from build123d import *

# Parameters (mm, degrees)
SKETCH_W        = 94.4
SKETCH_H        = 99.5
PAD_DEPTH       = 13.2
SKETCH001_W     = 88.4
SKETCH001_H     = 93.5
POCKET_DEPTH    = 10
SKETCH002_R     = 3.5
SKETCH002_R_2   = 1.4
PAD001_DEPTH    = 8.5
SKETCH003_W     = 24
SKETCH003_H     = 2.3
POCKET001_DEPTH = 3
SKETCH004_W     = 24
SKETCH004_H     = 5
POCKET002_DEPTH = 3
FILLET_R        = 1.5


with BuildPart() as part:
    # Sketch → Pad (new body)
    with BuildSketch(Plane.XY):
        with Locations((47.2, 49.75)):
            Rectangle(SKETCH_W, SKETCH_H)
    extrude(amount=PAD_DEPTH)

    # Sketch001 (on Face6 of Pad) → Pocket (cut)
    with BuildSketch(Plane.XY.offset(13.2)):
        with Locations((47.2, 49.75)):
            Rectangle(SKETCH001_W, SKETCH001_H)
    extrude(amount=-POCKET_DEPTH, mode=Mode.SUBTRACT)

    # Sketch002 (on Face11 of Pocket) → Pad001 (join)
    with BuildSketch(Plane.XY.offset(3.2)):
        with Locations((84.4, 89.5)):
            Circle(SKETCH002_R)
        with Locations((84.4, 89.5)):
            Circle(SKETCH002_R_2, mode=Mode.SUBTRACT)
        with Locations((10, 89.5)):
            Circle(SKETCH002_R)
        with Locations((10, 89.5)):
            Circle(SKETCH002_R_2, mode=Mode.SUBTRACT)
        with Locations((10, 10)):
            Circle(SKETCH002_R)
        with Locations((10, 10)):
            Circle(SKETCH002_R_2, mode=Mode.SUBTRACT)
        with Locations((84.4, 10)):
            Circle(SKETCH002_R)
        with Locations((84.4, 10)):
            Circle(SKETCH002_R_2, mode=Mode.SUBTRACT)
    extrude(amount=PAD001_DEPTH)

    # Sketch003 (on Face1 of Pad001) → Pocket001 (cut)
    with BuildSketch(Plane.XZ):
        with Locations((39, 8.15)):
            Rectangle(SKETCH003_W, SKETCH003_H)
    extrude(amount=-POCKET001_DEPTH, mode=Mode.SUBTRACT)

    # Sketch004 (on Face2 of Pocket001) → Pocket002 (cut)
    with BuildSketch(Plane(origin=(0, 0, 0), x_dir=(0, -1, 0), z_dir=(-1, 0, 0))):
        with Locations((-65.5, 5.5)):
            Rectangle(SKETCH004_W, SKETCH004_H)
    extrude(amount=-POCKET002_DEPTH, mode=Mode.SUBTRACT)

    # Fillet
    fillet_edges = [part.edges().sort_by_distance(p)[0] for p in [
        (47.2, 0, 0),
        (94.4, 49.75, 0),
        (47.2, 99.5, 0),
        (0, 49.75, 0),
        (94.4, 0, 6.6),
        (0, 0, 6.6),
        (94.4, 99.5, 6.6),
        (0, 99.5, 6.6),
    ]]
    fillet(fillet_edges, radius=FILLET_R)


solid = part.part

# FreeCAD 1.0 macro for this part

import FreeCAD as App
import Part
import Sketcher

V = App.Vector


def edges_at(feature, points):
    """Names of the edges that pass closest to the given points."""
    edges = feature.Shape.Edges
    near = lambda p: min(range(len(edges)), key=lambda i: edges[i].distToShape(Part.Vertex(*p))[0])
    return sorted({f"Edge{near(p) + 1}" for p in points})

doc = App.newDocument("Part")
body = doc.addObject("PartDesign::Body", "Body")

# Sketch on XY plane
sketch1 = body.newObject("Sketcher::SketchObject", "Sketch")
sketch1.AttachmentSupport = (doc.getObject("XY_Plane"), [""])
sketch1.MapMode = "FlatFace"
sketch1.addGeometry([
    Part.LineSegment(V(0, 100, 0), V(0, 0, 0)),
    Part.LineSegment(V(0, 0, 0), V(94, 0, 0)),
    Part.LineSegment(V(94, 0, 0), V(94, 100, 0)),
    Part.LineSegment(V(94, 100, 0), V(0, 100, 0)),
], False)
sketch1.addConstraint([
    Sketcher.Constraint("Coincident", 0, 2, 1, 1),
    Sketcher.Constraint("Coincident", 1, 2, 2, 1),
    Sketcher.Constraint("Coincident", 2, 2, 3, 1),
    Sketcher.Constraint("Coincident", 3, 2, 0, 1),
    Sketcher.Constraint("Vertical", 0),
    Sketcher.Constraint("Horizontal", 1),
    Sketcher.Constraint("Vertical", 2),
    Sketcher.Constraint("Horizontal", 3),
    Sketcher.Constraint("Coincident", 0, 2, -1, 1),
    Sketcher.Constraint("DistanceX", 1, 1, 1, 2, 94.4),
    Sketcher.Constraint("DistanceY", 0, 2, 0, 1, 99.5),
])
pad1 = body.newObject("PartDesign::Pad", "Pad")
pad1.Profile = sketch1
pad1.Length = 13.2

# Sketch on XY plane
sketch2 = body.newObject("Sketcher::SketchObject", "Sketch001")
sketch2.AttachmentSupport = (doc.getObject("XY_Plane"), [""])
sketch2.MapMode = "FlatFace"
sketch2.AttachmentOffset = App.Placement(V(0, 0, 13.2), App.Rotation())
sketch2.addGeometry([
    Part.LineSegment(V(3, 96, 0), V(3, 3, 0)),
    Part.LineSegment(V(3, 3, 0), V(91, 3, 0)),
    Part.LineSegment(V(91, 3, 0), V(91, 96, 0)),
    Part.LineSegment(V(91, 96, 0), V(3, 96, 0)),
], False)
sketch2.addConstraint([
    Sketcher.Constraint("Coincident", 0, 2, 1, 1),
    Sketcher.Constraint("Coincident", 1, 2, 2, 1),
    Sketcher.Constraint("Coincident", 2, 2, 3, 1),
    Sketcher.Constraint("Coincident", 3, 2, 0, 1),
    Sketcher.Constraint("Vertical", 0),
    Sketcher.Constraint("Horizontal", 1),
    Sketcher.Constraint("Vertical", 2),
    Sketcher.Constraint("Horizontal", 3),
    Sketcher.Constraint("DistanceX", 1, 1, 1, 2, 88.4),
    Sketcher.Constraint("DistanceY", 0, 2, 0, 1, 93.5),
    Sketcher.Constraint("DistanceX", -1, 1, 0, 2, 3.0),
    Sketcher.Constraint("DistanceY", -1, 1, 0, 2, 3.0),
])
pocket1 = body.newObject("PartDesign::Pocket", "Pocket")
pocket1.Profile = sketch2
pocket1.Length = 10

# Sketch on XY plane
sketch3 = body.newObject("Sketcher::SketchObject", "Sketch002")
sketch3.AttachmentSupport = (doc.getObject("XY_Plane"), [""])
sketch3.MapMode = "FlatFace"
sketch3.AttachmentOffset = App.Placement(V(0, 0, 3.2), App.Rotation())
sketch3.addGeometry([
    Part.Circle(V(84.4, 89.5, 0), V(0, 0, 1), 3.5),  # 0
    Part.Circle(V(84.4, 89.5, 0), V(0, 0, 1), 1.4),  # 1
    Part.Circle(V(10, 89.5, 0), V(0, 0, 1), 3.5),  # 2
    Part.Circle(V(10, 89.5, 0), V(0, 0, 1), 1.4),  # 3
    Part.Circle(V(10, 10, 0), V(0, 0, 1), 3.5),  # 4
    Part.Circle(V(10, 10, 0), V(0, 0, 1), 1.4),  # 5
    Part.Circle(V(84.4, 10, 0), V(0, 0, 1), 3.5),  # 6
    Part.Circle(V(84.4, 10, 0), V(0, 0, 1), 1.4),  # 7
], False)
sketch3.addConstraint([
    Sketcher.Constraint("Coincident", 1, 3, 0, 3),
    Sketcher.Constraint("Coincident", 3, 3, 2, 3),
    Sketcher.Constraint("Coincident", 5, 3, 4, 3),
    Sketcher.Constraint("Coincident", 7, 3, 6, 3),
    Sketcher.Constraint("Equal", 0, 2),
    Sketcher.Constraint("Equal", 1, 3),
    Sketcher.Constraint("Equal", 2, 4),
    Sketcher.Constraint("Equal", 3, 5),
    Sketcher.Constraint("Equal", 4, 6),
    Sketcher.Constraint("Equal", 5, 7),
    Sketcher.Constraint("Horizontal", 1, 3, 2, 3),
    Sketcher.Constraint("Horizontal", 5, 3, 6, 3),
    Sketcher.Constraint("Vertical", 3, 3, 4, 3),
    Sketcher.Constraint("Vertical", 1, 3, 6, 3),
    Sketcher.Constraint("Diameter", 0, 7.0),
    Sketcher.Constraint("Diameter", 1, 2.8),
    Sketcher.Constraint("DistanceX", -1, 1, 2, 3, 10.0),
    Sketcher.Constraint("DistanceY", -1, 1, 4, 3, 10.0),
    Sketcher.Constraint("DistanceX", -1, 1, 0, 3, 84.4),
    Sketcher.Constraint("DistanceY", -1, 1, 0, 3, 89.5),
])
pad2 = body.newObject("PartDesign::Pad", "Pad001")
pad2.Profile = sketch3
pad2.Length = 8.5

# Sketch on XZ plane
sketch4 = body.newObject("Sketcher::SketchObject", "Sketch003")
sketch4.AttachmentSupport = (doc.getObject("XZ_Plane"), [""])
sketch4.MapMode = "FlatFace"
sketch4.addGeometry([
    Part.LineSegment(V(27, 9.3, 0), V(27, 7, 0)),
    Part.LineSegment(V(27, 7, 0), V(51, 7, 0)),
    Part.LineSegment(V(51, 7, 0), V(51, 9.3, 0)),
    Part.LineSegment(V(51, 9.3, 0), V(27, 9.3, 0)),
], False)
sketch4.addConstraint([
    Sketcher.Constraint("Coincident", 0, 2, 1, 1),
    Sketcher.Constraint("Coincident", 1, 2, 2, 1),
    Sketcher.Constraint("Coincident", 2, 2, 3, 1),
    Sketcher.Constraint("Coincident", 3, 2, 0, 1),
    Sketcher.Constraint("Vertical", 0),
    Sketcher.Constraint("Horizontal", 1),
    Sketcher.Constraint("Vertical", 2),
    Sketcher.Constraint("Horizontal", 3),
    Sketcher.Constraint("DistanceX", 1, 1, 1, 2, 24.0),
    Sketcher.Constraint("DistanceY", 0, 2, 0, 1, 2.3),
    Sketcher.Constraint("DistanceX", -1, 1, 0, 2, 27.0),
    Sketcher.Constraint("DistanceY", -1, 1, 0, 2, 7.0),
])
pocket2 = body.newObject("PartDesign::Pocket", "Pocket001")
pocket2.Profile = sketch4
pocket2.Length = 3

# Sketch on YZ plane
sketch5 = body.newObject("Sketcher::SketchObject", "Sketch004")
sketch5.AttachmentSupport = (doc.getObject("YZ_Plane"), [""])
sketch5.MapMode = "FlatFace"
sketch5.addGeometry([
    Part.LineSegment(V(78, 8, 0), V(78, 3, 0)),
    Part.LineSegment(V(78, 3, 0), V(54, 3, 0)),
    Part.LineSegment(V(54, 3, 0), V(54, 8, 0)),
    Part.LineSegment(V(54, 8, 0), V(78, 8, 0)),
], False)
sketch5.addConstraint([
    Sketcher.Constraint("Coincident", 0, 2, 1, 1),
    Sketcher.Constraint("Coincident", 1, 2, 2, 1),
    Sketcher.Constraint("Coincident", 2, 2, 3, 1),
    Sketcher.Constraint("Coincident", 3, 2, 0, 1),
    Sketcher.Constraint("Vertical", 0),
    Sketcher.Constraint("Horizontal", 1),
    Sketcher.Constraint("Vertical", 2),
    Sketcher.Constraint("Horizontal", 3),
    Sketcher.Constraint("DistanceX", 1, 2, 1, 1, 24.0),
    Sketcher.Constraint("DistanceY", 0, 2, 0, 1, 5.0),
    Sketcher.Constraint("DistanceY", -1, 1, 0, 2, 3.0),
    Sketcher.Constraint("DistanceX", -1, 1, 0, 2, 77.5),
])
pocket3 = body.newObject("PartDesign::Pocket", "Pocket002")
pocket3.Profile = sketch5
pocket3.Length = 3
pocket3.Reversed = True
doc.recompute()

fillet = body.newObject("PartDesign::Fillet", "Fillet")
fillet.Base = (pocket3, edges_at(pocket3, [
    (47.2, 0, 0),
    (94.4, 49.75, 0),
    (47.2, 99.5, 0),
    (0, 49.75, 0),
    (94.4, 0, 6.6),
    (0, 0, 6.6),
    (94.4, 99.5, 6.6),
    (0, 99.5, 6.6),
]))
fillet.Radius = 1.5

doc.recompute()
